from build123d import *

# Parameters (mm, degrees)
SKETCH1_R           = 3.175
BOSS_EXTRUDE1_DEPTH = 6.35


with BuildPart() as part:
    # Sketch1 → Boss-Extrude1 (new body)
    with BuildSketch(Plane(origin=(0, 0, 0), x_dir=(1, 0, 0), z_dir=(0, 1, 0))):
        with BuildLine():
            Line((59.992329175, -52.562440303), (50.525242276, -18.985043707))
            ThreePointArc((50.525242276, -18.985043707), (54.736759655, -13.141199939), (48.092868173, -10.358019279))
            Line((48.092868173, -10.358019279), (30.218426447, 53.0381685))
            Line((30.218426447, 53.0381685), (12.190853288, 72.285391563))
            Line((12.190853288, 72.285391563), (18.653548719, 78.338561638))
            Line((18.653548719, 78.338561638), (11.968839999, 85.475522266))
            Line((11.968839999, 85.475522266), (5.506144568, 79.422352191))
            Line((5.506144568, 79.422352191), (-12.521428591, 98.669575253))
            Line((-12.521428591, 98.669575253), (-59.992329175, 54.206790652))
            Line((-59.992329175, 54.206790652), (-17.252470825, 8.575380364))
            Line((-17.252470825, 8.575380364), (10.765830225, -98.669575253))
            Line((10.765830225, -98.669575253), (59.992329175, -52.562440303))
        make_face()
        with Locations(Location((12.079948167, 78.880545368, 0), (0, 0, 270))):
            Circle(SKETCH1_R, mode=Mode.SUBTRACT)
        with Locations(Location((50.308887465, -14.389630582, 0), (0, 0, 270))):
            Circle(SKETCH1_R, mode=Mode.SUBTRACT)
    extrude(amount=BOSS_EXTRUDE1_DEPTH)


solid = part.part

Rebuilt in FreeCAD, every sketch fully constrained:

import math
import FreeCAD as App
import Part
import Sketcher

V = App.Vector
Q = App.Units.Quantity

doc = App.newDocument("Part")
body = doc.addObject("PartDesign::Body", "Body")

# Sketch on XZ plane
sketch1 = body.newObject("Sketcher::SketchObject", "Sketch")
sketch1.AttachmentSupport = (doc.getObject("XZ_Plane"), [""])
sketch1.MapMode = "FlatFace"
sketch1.addGeometry([
    Part.LineSegment(V(60, 52.6, 0), V(50.5, 19, 0)),  # 0
    Part.ArcOfCircle(Part.Circle(V(50.3, 14.4, 0), V(0, 0, 1), 4.6), math.radians(-119), math.radians(87)),  # 1
    Part.LineSegment(V(48.1, 10.4, 0), V(30.2, -53, 0)),  # 2
    Part.LineSegment(V(30.2, -53, 0), V(12.2, -72.3, 0)),  # 3
    Part.LineSegment(V(12.2, -72.3, 0), V(18.7, -78.3, 0)),  # 4
    Part.LineSegment(V(18.7, -78.3, 0), V(12, -85.5, 0)),  # 5
    Part.LineSegment(V(12, -85.5, 0), V(5.5, -79.4, 0)),  # 6
    Part.LineSegment(V(5.5, -79.4, 0), V(-12.5, -98.7, 0)),  # 7
    Part.LineSegment(V(-12.5, -98.7, 0), V(-60, -54.2, 0)),  # 8
    Part.LineSegment(V(-60, -54.2, 0), V(-17.3, -8.6, 0)),  # 9
    Part.LineSegment(V(-17.3, -8.6, 0), V(10.8, 98.7, 0)),  # 10
    Part.LineSegment(V(10.8, 98.7, 0), V(60, 52.6, 0)),  # 11
    Part.Circle(V(50.3, 14.4, 0), V(0, 0, 1), 3.2),  # 12
    Part.Circle(V(12.1, -78.9, 0), V(0, 0, 1), 3.2),  # 13
], False)
sketch1.addConstraint([
    Sketcher.Constraint("Coincident", 0, 2, 1, 2),
    Sketcher.Constraint("Coincident", 1, 1, 2, 1),
    Sketcher.Constraint("Coincident", 2, 2, 3, 1),
    Sketcher.Constraint("Coincident", 3, 2, 4, 1),
    Sketcher.Constraint("Coincident", 4, 2, 5, 1),
    Sketcher.Constraint("Coincident", 5, 2, 6, 1),
    Sketcher.Constraint("Coincident", 6, 2, 7, 1),
    Sketcher.Constraint("Coincident", 7, 2, 8, 1),
    Sketcher.Constraint("Coincident", 8, 2, 9, 1),
    Sketcher.Constraint("Coincident", 9, 2, 10, 1),
    Sketcher.Constraint("Coincident", 10, 2, 11, 1),
    Sketcher.Constraint("Coincident", 11, 2, 0, 1),
    Sketcher.Constraint("Coincident", 12, 3, 1, 3),
    Sketcher.Constraint("Equal", 12, 13),
    Sketcher.Constraint("Parallel", 0, 2),
    Sketcher.Constraint("Perpendicular", 3, 4),
    Sketcher.Constraint("Perpendicular", 4, 5),
    Sketcher.Constraint("Perpendicular", 5, 6),
    Sketcher.Constraint("Perpendicular", 6, 7),
    Sketcher.Constraint("Perpendicular", 7, 8),
    Sketcher.Constraint("Perpendicular", 8, 9),
    Sketcher.Constraint("Perpendicular", 9, 11),
    Sketcher.Constraint("Equal", 4, 6),
    Sketcher.Constraint("Equal", 3, 7),
    Sketcher.Constraint("Diameter", 12, Q("0.25 in")),
    Sketcher.Constraint("Radius", 1, Q("4.600503 mm")),
    Sketcher.Constraint("DistanceY", 2, 2, 1, 3, Q("67.427799 mm")),
    Sketcher.Constraint("DistanceX", 13, 3, 4, 2, Q("6.573601 mm")),
    Sketcher.Constraint("DistanceX", 8, 2, 7, 2, Q("47.470901 mm")),
    Sketcher.Constraint("DistanceY", 3, 2, 8, 2, Q("18.078601 mm")),
    Sketcher.Constraint("DistanceY", 9, 2, 1, 1, Q("18.9334 mm")),
    Sketcher.Constraint("DistanceX", 9, 2, 10, 2, Q("28.018301 mm")),
    Sketcher.Constraint("DistanceX", 10, 2, 11, 2, Q("49.226499 mm")),
    Sketcher.Constraint("Distance", 0, Q("34.886492 mm")),
    Sketcher.Constraint("Distance", 2, Q("65.86784 mm")),
    Sketcher.Constraint("Distance", 4, Q("8.85479 mm")),
    Sketcher.Constraint("Distance", 10, Q("110.844511 mm")),
    Sketcher.Constraint("DistanceY", -1, 1, 1, 3, Q("14.389631 mm")),
    Sketcher.Constraint("DistanceX", -1, 1, 13, 3, Q("12.079948 mm")),
    Sketcher.Constraint("DistanceX", -1, 1, 1, 1, Q("48.092868 mm")),
    Sketcher.Constraint("DistanceY", -1, 1, 1, 1, Q("10.358019 mm")),
    Sketcher.Constraint("DistanceY", 13, 3, 0, 2, Q("97.865589 mm")),
])
pad1 = body.newObject("PartDesign::Pad", "Pad")
pad1.Profile = sketch1
pad1.Length = Q("0.25 in")
pad1.Reversed = True

doc.recompute()
